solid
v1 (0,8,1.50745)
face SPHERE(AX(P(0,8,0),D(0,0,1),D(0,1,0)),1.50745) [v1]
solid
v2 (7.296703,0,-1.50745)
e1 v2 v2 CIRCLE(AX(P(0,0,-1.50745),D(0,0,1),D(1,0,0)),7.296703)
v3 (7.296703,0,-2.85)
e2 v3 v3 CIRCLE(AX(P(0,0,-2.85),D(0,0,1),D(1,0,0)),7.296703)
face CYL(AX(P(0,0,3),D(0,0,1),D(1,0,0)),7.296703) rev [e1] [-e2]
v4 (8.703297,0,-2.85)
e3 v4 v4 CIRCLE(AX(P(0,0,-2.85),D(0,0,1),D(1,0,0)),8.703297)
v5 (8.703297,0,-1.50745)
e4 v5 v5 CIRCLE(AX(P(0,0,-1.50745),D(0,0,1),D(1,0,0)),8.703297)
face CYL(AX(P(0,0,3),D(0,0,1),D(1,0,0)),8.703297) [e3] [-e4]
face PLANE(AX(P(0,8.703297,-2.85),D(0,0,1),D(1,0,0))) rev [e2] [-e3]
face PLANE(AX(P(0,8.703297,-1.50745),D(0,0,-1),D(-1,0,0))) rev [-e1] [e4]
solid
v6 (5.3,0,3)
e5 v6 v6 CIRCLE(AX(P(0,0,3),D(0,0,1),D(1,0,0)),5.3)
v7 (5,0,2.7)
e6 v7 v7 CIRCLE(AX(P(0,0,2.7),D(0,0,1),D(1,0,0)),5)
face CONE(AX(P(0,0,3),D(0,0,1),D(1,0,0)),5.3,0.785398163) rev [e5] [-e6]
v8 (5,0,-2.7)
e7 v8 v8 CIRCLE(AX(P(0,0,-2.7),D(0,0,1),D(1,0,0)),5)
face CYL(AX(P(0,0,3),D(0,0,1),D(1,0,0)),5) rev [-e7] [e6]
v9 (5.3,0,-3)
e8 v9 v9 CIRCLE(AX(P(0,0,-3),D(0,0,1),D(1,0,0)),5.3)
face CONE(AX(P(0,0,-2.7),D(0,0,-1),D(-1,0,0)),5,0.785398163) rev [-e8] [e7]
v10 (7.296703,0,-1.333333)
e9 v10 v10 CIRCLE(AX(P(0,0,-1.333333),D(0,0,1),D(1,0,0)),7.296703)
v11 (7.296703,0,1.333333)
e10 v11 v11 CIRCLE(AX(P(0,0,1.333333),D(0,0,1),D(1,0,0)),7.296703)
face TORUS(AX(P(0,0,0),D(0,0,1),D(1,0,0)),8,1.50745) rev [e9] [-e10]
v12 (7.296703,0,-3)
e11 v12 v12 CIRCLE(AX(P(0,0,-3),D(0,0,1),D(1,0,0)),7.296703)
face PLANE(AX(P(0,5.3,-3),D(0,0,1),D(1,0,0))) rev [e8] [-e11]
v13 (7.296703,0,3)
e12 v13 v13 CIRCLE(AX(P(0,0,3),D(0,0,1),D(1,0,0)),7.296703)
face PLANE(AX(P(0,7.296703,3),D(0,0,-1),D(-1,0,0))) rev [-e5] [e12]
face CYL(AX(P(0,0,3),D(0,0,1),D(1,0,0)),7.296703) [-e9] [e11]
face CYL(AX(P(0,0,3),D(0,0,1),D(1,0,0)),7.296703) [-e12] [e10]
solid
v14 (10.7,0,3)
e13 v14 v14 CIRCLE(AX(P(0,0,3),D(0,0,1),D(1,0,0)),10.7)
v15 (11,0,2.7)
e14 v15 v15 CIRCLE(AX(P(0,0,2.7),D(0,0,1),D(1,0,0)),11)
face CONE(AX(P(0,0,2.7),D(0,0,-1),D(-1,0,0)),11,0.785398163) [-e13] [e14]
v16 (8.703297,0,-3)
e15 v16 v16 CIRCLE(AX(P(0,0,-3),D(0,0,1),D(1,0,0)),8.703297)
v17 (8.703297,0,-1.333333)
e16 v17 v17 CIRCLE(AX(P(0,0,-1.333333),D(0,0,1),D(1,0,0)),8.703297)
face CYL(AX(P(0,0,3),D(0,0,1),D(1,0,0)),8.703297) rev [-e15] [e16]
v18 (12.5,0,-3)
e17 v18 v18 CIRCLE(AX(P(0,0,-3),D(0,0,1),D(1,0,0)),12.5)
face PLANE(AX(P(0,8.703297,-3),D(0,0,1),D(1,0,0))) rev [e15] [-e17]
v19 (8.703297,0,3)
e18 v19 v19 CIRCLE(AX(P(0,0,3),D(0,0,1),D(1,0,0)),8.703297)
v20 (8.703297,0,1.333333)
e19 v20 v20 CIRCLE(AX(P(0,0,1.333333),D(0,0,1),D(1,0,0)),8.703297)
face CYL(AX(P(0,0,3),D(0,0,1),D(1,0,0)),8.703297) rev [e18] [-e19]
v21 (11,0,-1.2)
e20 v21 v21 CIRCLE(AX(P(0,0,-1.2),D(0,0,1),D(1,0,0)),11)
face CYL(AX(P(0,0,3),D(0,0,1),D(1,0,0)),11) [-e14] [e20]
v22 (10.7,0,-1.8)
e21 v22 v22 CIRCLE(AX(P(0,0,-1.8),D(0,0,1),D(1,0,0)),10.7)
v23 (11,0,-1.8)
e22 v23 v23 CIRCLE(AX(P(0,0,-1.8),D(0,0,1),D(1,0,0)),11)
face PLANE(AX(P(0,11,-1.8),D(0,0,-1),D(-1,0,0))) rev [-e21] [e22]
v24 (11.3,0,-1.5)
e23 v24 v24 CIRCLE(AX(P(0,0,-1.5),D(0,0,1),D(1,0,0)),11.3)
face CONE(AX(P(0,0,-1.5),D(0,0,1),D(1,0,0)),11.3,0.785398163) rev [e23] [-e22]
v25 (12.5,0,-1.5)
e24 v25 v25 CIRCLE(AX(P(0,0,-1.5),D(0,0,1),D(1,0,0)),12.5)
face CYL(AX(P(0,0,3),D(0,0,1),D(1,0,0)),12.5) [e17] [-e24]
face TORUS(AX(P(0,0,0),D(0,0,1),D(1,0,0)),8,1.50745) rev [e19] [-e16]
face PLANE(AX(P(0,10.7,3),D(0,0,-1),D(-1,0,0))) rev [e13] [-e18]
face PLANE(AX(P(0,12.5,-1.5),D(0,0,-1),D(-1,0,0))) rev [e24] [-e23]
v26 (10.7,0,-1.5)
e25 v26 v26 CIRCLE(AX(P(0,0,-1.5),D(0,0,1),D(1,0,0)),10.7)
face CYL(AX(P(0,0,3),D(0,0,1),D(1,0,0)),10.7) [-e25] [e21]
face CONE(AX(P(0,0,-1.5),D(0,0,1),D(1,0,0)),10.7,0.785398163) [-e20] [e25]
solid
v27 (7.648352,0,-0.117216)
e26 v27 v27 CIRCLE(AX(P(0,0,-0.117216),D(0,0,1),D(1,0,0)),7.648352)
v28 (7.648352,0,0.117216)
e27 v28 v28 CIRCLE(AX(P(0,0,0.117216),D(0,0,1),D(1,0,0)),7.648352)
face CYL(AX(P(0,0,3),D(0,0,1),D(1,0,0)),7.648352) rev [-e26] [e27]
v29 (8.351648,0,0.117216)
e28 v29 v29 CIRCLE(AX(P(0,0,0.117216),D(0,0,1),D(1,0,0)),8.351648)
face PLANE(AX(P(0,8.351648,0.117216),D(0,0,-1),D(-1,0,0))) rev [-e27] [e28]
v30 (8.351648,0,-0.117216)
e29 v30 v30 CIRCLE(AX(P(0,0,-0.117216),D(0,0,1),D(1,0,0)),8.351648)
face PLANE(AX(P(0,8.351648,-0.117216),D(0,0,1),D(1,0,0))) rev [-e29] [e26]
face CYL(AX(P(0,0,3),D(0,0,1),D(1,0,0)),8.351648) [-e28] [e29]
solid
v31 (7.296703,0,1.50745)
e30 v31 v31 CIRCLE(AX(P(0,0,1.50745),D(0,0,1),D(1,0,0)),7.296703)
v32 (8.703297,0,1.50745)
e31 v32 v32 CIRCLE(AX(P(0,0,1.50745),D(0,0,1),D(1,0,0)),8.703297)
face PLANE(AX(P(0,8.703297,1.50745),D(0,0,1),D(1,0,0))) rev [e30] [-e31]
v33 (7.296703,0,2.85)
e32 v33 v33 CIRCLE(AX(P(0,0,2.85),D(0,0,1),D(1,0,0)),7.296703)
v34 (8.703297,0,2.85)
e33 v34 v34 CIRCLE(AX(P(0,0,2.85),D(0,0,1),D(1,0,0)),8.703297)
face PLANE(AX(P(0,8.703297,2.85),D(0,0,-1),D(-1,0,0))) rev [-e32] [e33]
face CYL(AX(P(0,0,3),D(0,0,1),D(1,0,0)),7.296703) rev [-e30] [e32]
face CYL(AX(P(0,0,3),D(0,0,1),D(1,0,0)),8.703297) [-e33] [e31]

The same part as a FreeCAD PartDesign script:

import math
import FreeCAD as App
import Part
import Sketcher

V = App.Vector


def add_polygon(sketch, points):
    """Adds a closed chain of lines whose ends are joined by coincident constraints."""
    first, n = sketch.GeometryCount, len(points)
    for a, b in zip(points, points[1:] + points[:1]):
        sketch.addGeometry(Part.LineSegment(App.Vector(*a, 0), App.Vector(*b, 0)), False)
    for i in range(n):
        sketch.addConstraint(Sketcher.Constraint("Coincident", first + i, 2, first + (i + 1) % n, 1))

doc = App.newDocument("Part")
body = doc.addObject("PartDesign::Body", "Body")

# Sketch on YZ plane
sketch1 = body.newObject("Sketcher::SketchObject", "Sketch")
sketch1.AttachmentSupport = (doc.getObject("YZ_Plane"), [""])
sketch1.MapMode = "FlatFace"
sketch1.addGeometry([
    Part.LineSegment(V(12.5, -3, 0), V(12.5, -1.5, 0)),  # 0
    Part.LineSegment(V(12.5, -1.5, 0), V(11.3, -1.5, 0)),  # 1
    Part.LineSegment(V(11.3, -1.5, 0), V(11, -1.8, 0)),  # 2
    Part.LineSegment(V(11, -1.8, 0), V(10.7, -1.8, 0)),  # 3
    Part.LineSegment(V(10.7, -1.8, 0), V(10.7, -1.5, 0)),  # 4
    Part.LineSegment(V(10.7, -1.5, 0), V(11, -1.2, 0)),  # 5
    Part.LineSegment(V(11, -1.2, 0), V(11, 2.7, 0)),  # 6
    Part.LineSegment(V(11, 2.7, 0), V(10.7, 3, 0)),  # 7
    Part.LineSegment(V(10.7, 3, 0), V(8.7, 3, 0)),  # 8
    Part.LineSegment(V(8.7, 3, 0), V(8.7, 1.33, 0)),  # 9
    Part.ArcOfCircle(Part.Circle(V(8, 0, 0), V(0, 0, 1), 1.51), math.radians(-62), math.radians(62)),  # 10
    Part.LineSegment(V(8.7, -1.33, 0), V(8.7, -3, 0)),  # 11
    Part.LineSegment(V(8.7, -3, 0), V(12.5, -3, 0)),  # 12
], False)
sketch1.addConstraint([
    Sketcher.Constraint("Coincident", 0, 2, 1, 1),
    Sketcher.Constraint("Coincident", 1, 2, 2, 1),
    Sketcher.Constraint("Coincident", 2, 2, 3, 1),
    Sketcher.Constraint("Coincident", 3, 2, 4, 1),
    Sketcher.Constraint("Coincident", 4, 2, 5, 1),
    Sketcher.Constraint("Coincident", 5, 2, 6, 1),
    Sketcher.Constraint("Coincident", 6, 2, 7, 1),
    Sketcher.Constraint("Coincident", 7, 2, 8, 1),
    Sketcher.Constraint("Coincident", 8, 2, 9, 1),
    Sketcher.Constraint("Coincident", 9, 2, 10, 2),
    Sketcher.Constraint("Coincident", 10, 1, 11, 1),
    Sketcher.Constraint("Coincident", 11, 2, 12, 1),
    Sketcher.Constraint("Coincident", 12, 2, 0, 1),
    Sketcher.Constraint("Vertical", 0),
    Sketcher.Constraint("Horizontal", 1),
    Sketcher.Constraint("Horizontal", 3),
    Sketcher.Constraint("Vertical", 4),
    Sketcher.Constraint("Vertical", 6),
    Sketcher.Constraint("Horizontal", 8),
    Sketcher.Constraint("Vertical", 9),
    Sketcher.Constraint("Vertical", 11),
    Sketcher.Constraint("Horizontal", 12),
    Sketcher.Constraint("Symmetric", 9, 2, 10, 1, -1),
    Sketcher.Constraint("Parallel", 2, 5),
    Sketcher.Constraint("Perpendicular", 5, 7),
    Sketcher.Constraint("Horizontal", 1, 2, 4, 2),
    Sketcher.Constraint("Vertical", 2, 2, 5, 2),
    Sketcher.Constraint("Vertical", 4, 2, 7, 2),
    Sketcher.Constraint("Equal", 3, 4),
    Sketcher.Constraint("Equal", 9, 11),
    Sketcher.Constraint("Equal", 2, 5),
    Sketcher.Constraint("DistanceX", 1, 2, 1, 1, 1.2),
    Sketcher.Constraint("DistanceX", 3, 2, 3, 1, 0.3),
    Sketcher.Constraint("DistanceY", 0, 1, 0, 2, 1.5),
    Sketcher.Constraint("DistanceY", 6, 1, 6, 2, 3.9),
    Sketcher.Constraint("DistanceX", -1, 1, 10, 3, 8.0),
    Sketcher.Constraint("DistanceX", -1, 1, 2, 2, 11.0),
    Sketcher.Constraint("Radius", 10, 1.50745),
    Sketcher.Constraint("DistanceX", 8, 2, 8, 1, 1.996703),
])
revolution = body.newObject("PartDesign::Revolution", "Revolution")
revolution.Profile = sketch1
revolution.ReferenceAxis = (sketch1, ["V_Axis"])
revolution.Angle = 360
body2 = doc.addObject("PartDesign::Body", "Body001")

# Sketch on YZ plane
sketch2 = body2.newObject("Sketcher::SketchObject", "Sketch001")
sketch2.AttachmentSupport = (doc.getObject("YZ_Plane001"), [""])
sketch2.MapMode = "FlatFace"
sketch2.addGeometry([
    Part.LineSegment(V(7.3, 1.33, 0), V(7.3, 3, 0)),  # 0
    Part.LineSegment(V(7.3, 3, 0), V(5.3, 3, 0)),  # 1
    Part.LineSegment(V(5.3, 3, 0), V(5, 2.7, 0)),  # 2
    Part.LineSegment(V(5, 2.7, 0), V(5, -2.7, 0)),  # 3
    Part.LineSegment(V(5, -2.7, 0), V(5.3, -3, 0)),  # 4
    Part.LineSegment(V(5.3, -3, 0), V(7.3, -3, 0)),  # 5
    Part.LineSegment(V(7.3, -3, 0), V(7.3, -1.33, 0)),  # 6
    Part.ArcOfCircle(Part.Circle(V(8, 0, 0), V(0, 0, 1), 1.51), math.radians(118), math.radians(242)),  # 7
], False)
sketch2.addConstraint([
    Sketcher.Constraint("Coincident", 0, 2, 1, 1),
    Sketcher.Constraint("Coincident", 1, 2, 2, 1),
    Sketcher.Constraint("Coincident", 2, 2, 3, 1),
    Sketcher.Constraint("Coincident", 3, 2, 4, 1),
    Sketcher.Constraint("Coincident", 4, 2, 5, 1),
    Sketcher.Constraint("Coincident", 5, 2, 6, 1),
    Sketcher.Constraint("Coincident", 6, 2, 7, 2),
    Sketcher.Constraint("Coincident", 7, 1, 0, 1),
    Sketcher.Constraint("Vertical", 0),
    Sketcher.Constraint("Horizontal", 1),
    Sketcher.Constraint("Vertical", 3),
    Sketcher.Constraint("Horizontal", 5),
    Sketcher.Constraint("Vertical", 6),
    Sketcher.Constraint("Symmetric", 1, 2, 4, 2, -1),
    Sketcher.Constraint("Symmetric", 6, 2, 7, 1, -1),
    Sketcher.Constraint("Perpendicular", 2, 4),
    Sketcher.Constraint("Equal", 2, 4),
    Sketcher.Constraint("DistanceY", 3, 2, 3, 1, 5.4),
    Sketcher.Constraint("DistanceX", -1, 1, 7, 3, 8.0),
    Sketcher.Constraint("DistanceY", -1, 1, 0, 2, 3.0),
    Sketcher.Constraint("DistanceX", -1, 1, 2, 2, 5.0),
    Sketcher.Constraint("Radius", 7, 1.50745),
    Sketcher.Constraint("DistanceX", 1, 2, 1, 1, 1.996703),
])
revolution2 = body2.newObject("PartDesign::Revolution", "Revolution001")
revolution2.Profile = sketch2
revolution2.ReferenceAxis = (sketch2, ["V_Axis"])
revolution2.Angle = 360
body3 = doc.addObject("PartDesign::Body", "Body002")

# Sketch on YZ plane
sketch3 = body3.newObject("Sketcher::SketchObject", "Sketch002")
sketch3.AttachmentSupport = (doc.getObject("YZ_Plane002"), [""])
sketch3.MapMode = "FlatFace"
add_polygon(sketch3, [(8.35, 0.12), (7.65, 0.12), (7.65, -0.12), (8.35, -0.12)])  # lines 0-3
sketch3.addConstraint([
    Sketcher.Constraint("Horizontal", 0),
    Sketcher.Constraint("Vertical", 1),
    Sketcher.Constraint("Horizontal", 2),
    Sketcher.Constraint("Vertical", 3),
    Sketcher.Constraint("DistanceX", 0, 2, 0, 1, 0.703297),
    Sketcher.Constraint("DistanceY", 1, 2, 1, 1, 0.234432),
    Sketcher.Constraint("DistanceX", -1, 1, 0, 2, 7.648352),
    Sketcher.Constraint("DistanceY", -1, 1, 0, 2, 0.117216),
])
revolution3 = body3.newObject("PartDesign::Revolution", "Revolution002")
revolution3.Profile = sketch3
revolution3.ReferenceAxis = (sketch3, ["V_Axis"])
revolution3.Angle = 360
body4 = doc.addObject("PartDesign::Body", "Body003")

# Sketch on YZ plane
sketch4 = body4.newObject("Sketcher::SketchObject", "Sketch003")
sketch4.AttachmentSupport = (doc.getObject("YZ_Plane003"), [""])
sketch4.MapMode = "FlatFace"
sketch4.addGeometry([
    Part.LineSegment(V(8, 1.5, 0), V(8, -1.5, 0)),
    Part.ArcOfCircle(Part.Circle(V(8, 0, 0), V(0, 0, 1), 1.5), math.radians(-90), math.radians(90)),
], False)
sketch4.addGeometry(Part.LineSegment(V(8, 1.5, 0), V(8, -1.5, 0)), True)  # axis
sketch4.addConstraint([
    Sketcher.Constraint("Coincident", 0, 1, 1, 2),
    Sketcher.Constraint("Coincident", 1, 1, 0, 2),
    Sketcher.Constraint("Vertical", 0),
    Sketcher.Constraint("Vertical", 2),
    Sketcher.Constraint("Coincident", 2, 1, 0, 1),
    Sketcher.Constraint("PointOnObject", 1, 3, -1),
    Sketcher.Constraint("Vertical", 1, 3, 0, 1),
    Sketcher.Constraint("Equal", 0, 2),
    Sketcher.Constraint("DistanceX", -1, 1, 1, 3, 8.0),
    Sketcher.Constraint("Radius", 1, 1.50745),
])
revolution4 = body4.newObject("PartDesign::Revolution", "Revolution003")
revolution4.Profile = sketch4
revolution4.ReferenceAxis = (sketch4, ["Axis0"])
revolution4.Angle = 360
body5 = doc.addObject("PartDesign::Body", "Body004")
body5.AllowCompound = True

# Sketch on YZ plane
sketch5 = body5.newObject("Sketcher::SketchObject", "Sketch004")
sketch5.AttachmentSupport = (doc.getObject("YZ_Plane004"), [""])
sketch5.MapMode = "FlatFace"
add_polygon(sketch5, [(8.7, 2.9), (7.3, 2.9), (7.3, 1.5), (8.7, 1.5)])  # lines 0-3
add_polygon(sketch5, [(8.7, -1.5), (7.3, -1.5), (7.3, -2.9), (8.7, -2.9)])  # lines 4-7
sketch5.addConstraint([
    Sketcher.Constraint("Horizontal", 0),
    Sketcher.Constraint("Vertical", 1),
    Sketcher.Constraint("Horizontal", 2),
    Sketcher.Constraint("Vertical", 3),
    Sketcher.Constraint("Horizontal", 4),
    Sketcher.Constraint("Vertical", 5),
    Sketcher.Constraint("Horizontal", 6),
    Sketcher.Constraint("Vertical", 7),
    Sketcher.Constraint("Symmetric", 1, 2, 4, 2, -1),
    Sketcher.Constraint("Symmetric", 3, 2, 6, 2, -1),
    Sketcher.Constraint("DistanceY", 5, 2, 0, 2, 5.7),
    Sketcher.Constraint("DistanceY", 1, 2, 1, 1, 1.34255),
    Sketcher.Constraint("DistanceX", 0, 2, 0, 1, 1.406593),
    Sketcher.Constraint("DistanceX", -1, 1, 0, 2, 7.296703),
])
revolution5 = body5.newObject("PartDesign::Revolution", "Revolution004")
revolution5.Profile = sketch5
revolution5.ReferenceAxis = (sketch5, ["V_Axis"])
revolution5.Angle = 360

doc.recompute()
